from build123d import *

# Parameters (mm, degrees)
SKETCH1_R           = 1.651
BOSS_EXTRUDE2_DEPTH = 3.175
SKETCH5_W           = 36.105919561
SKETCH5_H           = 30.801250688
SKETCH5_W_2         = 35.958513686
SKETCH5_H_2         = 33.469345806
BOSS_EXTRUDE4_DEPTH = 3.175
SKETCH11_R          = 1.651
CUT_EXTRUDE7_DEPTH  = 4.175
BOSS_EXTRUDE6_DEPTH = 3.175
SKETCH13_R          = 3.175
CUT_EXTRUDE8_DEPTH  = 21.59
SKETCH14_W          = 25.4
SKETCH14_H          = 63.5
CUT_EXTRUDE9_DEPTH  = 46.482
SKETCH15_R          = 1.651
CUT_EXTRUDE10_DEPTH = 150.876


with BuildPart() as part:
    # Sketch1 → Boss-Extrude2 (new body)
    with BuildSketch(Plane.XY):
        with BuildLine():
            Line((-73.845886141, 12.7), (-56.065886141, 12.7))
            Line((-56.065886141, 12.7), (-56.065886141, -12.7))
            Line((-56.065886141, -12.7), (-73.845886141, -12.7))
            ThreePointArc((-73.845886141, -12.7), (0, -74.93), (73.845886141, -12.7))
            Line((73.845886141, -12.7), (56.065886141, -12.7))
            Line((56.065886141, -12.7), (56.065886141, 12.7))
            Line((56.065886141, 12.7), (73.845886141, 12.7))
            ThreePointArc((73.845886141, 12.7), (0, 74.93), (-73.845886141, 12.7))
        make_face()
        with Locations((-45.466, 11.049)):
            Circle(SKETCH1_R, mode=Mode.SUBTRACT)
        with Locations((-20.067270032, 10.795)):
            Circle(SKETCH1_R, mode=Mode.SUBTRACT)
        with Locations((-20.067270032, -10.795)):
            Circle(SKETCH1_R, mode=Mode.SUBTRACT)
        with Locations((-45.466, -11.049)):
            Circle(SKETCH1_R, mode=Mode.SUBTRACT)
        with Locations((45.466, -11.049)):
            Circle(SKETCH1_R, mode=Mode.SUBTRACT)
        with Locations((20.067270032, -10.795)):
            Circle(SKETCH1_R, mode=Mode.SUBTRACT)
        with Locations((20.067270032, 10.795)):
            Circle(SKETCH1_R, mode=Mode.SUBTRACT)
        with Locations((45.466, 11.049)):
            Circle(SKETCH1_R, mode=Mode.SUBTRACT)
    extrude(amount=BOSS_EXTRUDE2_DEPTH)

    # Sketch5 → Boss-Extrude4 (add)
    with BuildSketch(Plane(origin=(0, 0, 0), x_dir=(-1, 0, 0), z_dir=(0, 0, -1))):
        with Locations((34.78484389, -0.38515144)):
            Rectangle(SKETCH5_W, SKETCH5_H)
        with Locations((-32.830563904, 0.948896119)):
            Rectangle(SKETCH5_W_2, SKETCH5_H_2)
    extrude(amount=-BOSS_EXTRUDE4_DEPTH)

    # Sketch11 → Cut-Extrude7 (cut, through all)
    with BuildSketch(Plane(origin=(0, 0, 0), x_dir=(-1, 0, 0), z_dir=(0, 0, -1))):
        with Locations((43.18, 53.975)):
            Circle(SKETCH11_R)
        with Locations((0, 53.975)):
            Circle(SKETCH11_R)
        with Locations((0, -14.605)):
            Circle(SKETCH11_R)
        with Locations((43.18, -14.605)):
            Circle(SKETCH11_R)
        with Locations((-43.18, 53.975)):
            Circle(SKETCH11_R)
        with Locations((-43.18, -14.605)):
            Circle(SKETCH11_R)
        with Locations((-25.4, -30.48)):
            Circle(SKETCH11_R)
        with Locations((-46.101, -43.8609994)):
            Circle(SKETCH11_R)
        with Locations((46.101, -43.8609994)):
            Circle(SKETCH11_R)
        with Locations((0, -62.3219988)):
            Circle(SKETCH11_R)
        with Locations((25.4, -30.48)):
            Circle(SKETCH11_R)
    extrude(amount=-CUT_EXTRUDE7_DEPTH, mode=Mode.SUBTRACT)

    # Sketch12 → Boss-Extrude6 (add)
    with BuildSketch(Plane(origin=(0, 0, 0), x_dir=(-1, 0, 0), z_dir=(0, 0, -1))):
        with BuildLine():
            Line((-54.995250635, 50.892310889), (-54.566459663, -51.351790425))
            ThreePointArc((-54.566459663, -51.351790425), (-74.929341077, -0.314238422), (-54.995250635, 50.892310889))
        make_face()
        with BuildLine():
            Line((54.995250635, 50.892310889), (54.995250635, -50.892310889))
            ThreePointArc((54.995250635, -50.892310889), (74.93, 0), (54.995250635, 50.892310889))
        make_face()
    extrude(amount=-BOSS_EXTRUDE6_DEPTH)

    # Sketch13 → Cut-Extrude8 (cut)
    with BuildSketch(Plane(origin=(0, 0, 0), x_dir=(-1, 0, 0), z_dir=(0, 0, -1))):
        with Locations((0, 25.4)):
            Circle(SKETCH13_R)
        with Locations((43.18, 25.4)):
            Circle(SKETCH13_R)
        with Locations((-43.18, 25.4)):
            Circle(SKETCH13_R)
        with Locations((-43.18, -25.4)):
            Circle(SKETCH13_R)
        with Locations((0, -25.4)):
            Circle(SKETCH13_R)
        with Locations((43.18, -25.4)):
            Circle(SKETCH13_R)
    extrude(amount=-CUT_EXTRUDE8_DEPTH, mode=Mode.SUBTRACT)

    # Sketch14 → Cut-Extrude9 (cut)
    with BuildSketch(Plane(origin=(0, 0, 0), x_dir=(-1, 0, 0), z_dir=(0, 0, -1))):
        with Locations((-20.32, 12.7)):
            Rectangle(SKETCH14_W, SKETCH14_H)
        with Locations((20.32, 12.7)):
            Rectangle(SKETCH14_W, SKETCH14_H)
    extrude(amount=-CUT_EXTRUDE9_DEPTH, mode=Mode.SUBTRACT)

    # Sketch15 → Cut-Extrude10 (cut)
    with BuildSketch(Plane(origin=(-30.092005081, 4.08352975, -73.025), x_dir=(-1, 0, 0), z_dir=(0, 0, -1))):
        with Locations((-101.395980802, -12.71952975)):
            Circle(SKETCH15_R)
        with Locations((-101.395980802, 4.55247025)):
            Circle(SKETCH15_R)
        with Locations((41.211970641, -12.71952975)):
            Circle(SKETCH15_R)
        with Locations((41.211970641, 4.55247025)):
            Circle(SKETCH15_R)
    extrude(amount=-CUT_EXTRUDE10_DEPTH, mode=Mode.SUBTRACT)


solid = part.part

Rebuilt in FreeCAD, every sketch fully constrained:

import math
import FreeCAD as App
import Part
import Sketcher
from FreeCAD import Vector
Q = App.Units.Quantity

doc = App.newDocument("Part")
body = doc.addObject("PartDesign::Body", "Body")

# Sketch on XY plane
sketch1 = doc.addObject("Sketcher::SketchObject", "Sketch")
body.addObject(sketch1)
sketch1.AttachmentSupport = (doc.XY_Plane, [""])
sketch1.MapMode = "FlatFace"
sketch1.addGeometry(Part.LineSegment(Vector(-73.8, 12.7, 0), Vector(-56.1, 12.7, 0)), False)
sketch1.addGeometry(Part.LineSegment(Vector(-56.1, 12.7, 0), Vector(-56.1, -12.7, 0)), False)
sketch1.addGeometry(Part.LineSegment(Vector(-56.1, -12.7, 0), Vector(-73.8, -12.7, 0)), False)
sketch1.addGeometry(Part.ArcOfCircle(Part.Circle(Vector(0, 0, 0), Vector(0, 0, 1), 74.9), math.radians(-170), math.radians(-10)), False)
sketch1.addGeometry(Part.LineSegment(Vector(73.8, -12.7, 0), Vector(56.1, -12.7, 0)), False)
sketch1.addGeometry(Part.LineSegment(Vector(56.1, -12.7, 0), Vector(56.1, 12.7, 0)), False)
sketch1.addGeometry(Part.LineSegment(Vector(56.1, 12.7, 0), Vector(73.8, 12.7, 0)), False)
sketch1.addGeometry(Part.ArcOfCircle(Part.Circle(Vector(0, 0, 0), Vector(0, 0, 1), 74.9), math.radians(10), math.radians(170)), False)
sketch1.addGeometry(Part.Circle(Vector(-45.5, -11, 0), Vector(0, 0, 1), 1.7), False)
sketch1.addGeometry(Part.Circle(Vector(-20.1, -10.8, 0), Vector(0, 0, 1), 1.7), False)
sketch1.addGeometry(Part.Circle(Vector(20.1, -10.8, 0), Vector(0, 0, 1), 1.7), False)
sketch1.addGeometry(Part.Circle(Vector(45.5, -11, 0), Vector(0, 0, 1), 1.7), False)
sketch1.addGeometry(Part.Circle(Vector(-45.5, 11, 0), Vector(0, 0, 1), 1.7), False)
sketch1.addGeometry(Part.Circle(Vector(-20.1, 10.8, 0), Vector(0, 0, 1), 1.7), False)
sketch1.addGeometry(Part.Circle(Vector(20.1, 10.8, 0), Vector(0, 0, 1), 1.7), False)
sketch1.addGeometry(Part.Circle(Vector(45.5, 11, 0), Vector(0, 0, 1), 1.7), False)
sketch1.addConstraint(Sketcher.Constraint("Coincident", 0, 2, 1, 1))
sketch1.addConstraint(Sketcher.Constraint("Coincident", 1, 2, 2, 1))
sketch1.addConstraint(Sketcher.Constraint("Coincident", 2, 2, 3, 1))
sketch1.addConstraint(Sketcher.Constraint("Coincident", 3, 2, 4, 1))
sketch1.addConstraint(Sketcher.Constraint("Coincident", 4, 2, 5, 1))
sketch1.addConstraint(Sketcher.Constraint("Coincident", 5, 2, 6, 1))
sketch1.addConstraint(Sketcher.Constraint("Coincident", 6, 2, 7, 1))
sketch1.addConstraint(Sketcher.Constraint("Coincident", 7, 2, 0, 1))
sketch1.addConstraint(Sketcher.Constraint("Horizontal", 0))
sketch1.addConstraint(Sketcher.Constraint("Vertical", 1))
sketch1.addConstraint(Sketcher.Constraint("Horizontal", 2))
sketch1.addConstraint(Sketcher.Constraint("Horizontal", 4))
sketch1.addConstraint(Sketcher.Constraint("Vertical", 5))
sketch1.addConstraint(Sketcher.Constraint("Horizontal", 6))
sketch1.addConstraint(Sketcher.Constraint("Coincident", 3, 3, -1, 1))
sketch1.addConstraint(Sketcher.Constraint("Coincident", 7, 3, -1, 1))
sketch1.addConstraint(Sketcher.Constraint("Equal", 3, 7))
sketch1.addConstraint(Sketcher.Constraint("Equal", 8, 9))
sketch1.addConstraint(Sketcher.Constraint("Equal", 9, 10))
sketch1.addConstraint(Sketcher.Constraint("Equal", 10, 11))
sketch1.addConstraint(Sketcher.Constraint("Equal", 11, 12))
sketch1.addConstraint(Sketcher.Constraint("Equal", 12, 13))
sketch1.addConstraint(Sketcher.Constraint("Equal", 13, 14))
sketch1.addConstraint(Sketcher.Constraint("Equal", 14, 15))
sketch1.addConstraint(Sketcher.Constraint("Symmetric", 11, 3, 12, 3, -1, 1))
sketch1.addConstraint(Sketcher.Constraint("Symmetric", 10, 3, 13, 3, -1, 1))
sketch1.addConstraint(Sketcher.Constraint("Symmetric", 9, 3, 14, 3, -1, 1))
sketch1.addConstraint(Sketcher.Constraint("Symmetric", 8, 3, 15, 3, -1, 1))
sketch1.addConstraint(Sketcher.Constraint("Symmetric", 0, 2, 4, 2, -1, 1))
sketch1.addConstraint(Sketcher.Constraint("Symmetric", 9, 3, 10, 3, -2))
sketch1.addConstraint(Sketcher.Constraint("Symmetric", 8, 3, 11, 3, -2))
sketch1.addConstraint(Sketcher.Constraint("Horizontal", 2, 2, 3, 2))
sketch1.addConstraint(Sketcher.Constraint("Horizontal", 0, 2, 5, 2))
sketch1.addConstraint(Sketcher.Constraint("Diameter", 8, Q("0.13 in")))
sketch1.addConstraint(Sketcher.Constraint("DistanceY", 1, 2, 1, 1, Q("1 in")))
sketch1.addConstraint(Sketcher.Constraint("Radius", 3, Q("2.95 in")))
sketch1.addConstraint(Sketcher.Constraint("DistanceX", 0, 1, 0, 2, Q("0.7 in")))
sketch1.addConstraint(Sketcher.Constraint("DistanceX", 8, 3, -1, 1, Q("1.79 in")))
sketch1.addConstraint(Sketcher.Constraint("DistanceY", 8, 3, 9, 3, Q("0.01 in")))
sketch1.addConstraint(Sketcher.Constraint("DistanceY", 8, 3, 12, 3, Q("0.87 in")))
sketch1.addConstraint(Sketcher.Constraint("DistanceX", 9, 3, 10, 3, Q("1.5801 in")))
pad1 = doc.addObject("PartDesign::Pad", "Pad")
body.addObject(pad1)
pad1.Profile = sketch1
pad1.Length = Q("0.125 in")

# Sketch on XY plane
sketch2 = doc.addObject("Sketcher::SketchObject", "Sketch001")
body.addObject(sketch2)
sketch2.AttachmentSupport = (doc.XY_Plane, [""])
sketch2.MapMode = "FlatFace"
sketch2.addGeometry(Part.LineSegment(Vector(-17, 15, 0), Vector(-17, -16, 0)), False)
sketch2.addGeometry(Part.LineSegment(Vector(-17, -16, 0), Vector(-53, -16, 0)), False)
sketch2.addGeometry(Part.LineSegment(Vector(-53, -16, 0), Vector(-53, 15, 0)), False)
sketch2.addGeometry(Part.LineSegment(Vector(-53, 15, 0), Vector(-17, 15, 0)), False)
sketch2.addGeometry(Part.LineSegment(Vector(51, 18, 0), Vector(51, -16, 0)), False)
sketch2.addGeometry(Part.LineSegment(Vector(51, -16, 0), Vector(15, -16, 0)), False)
sketch2.addGeometry(Part.LineSegment(Vector(15, -16, 0), Vector(15, 18, 0)), False)
sketch2.addGeometry(Part.LineSegment(Vector(15, 18, 0), Vector(51, 18, 0)), False)
sketch2.addConstraint(Sketcher.Constraint("Coincident", 0, 2, 1, 1))
sketch2.addConstraint(Sketcher.Constraint("Coincident", 1, 2, 2, 1))
sketch2.addConstraint(Sketcher.Constraint("Coincident", 2, 2, 3, 1))
sketch2.addConstraint(Sketcher.Constraint("Coincident", 3, 2, 0, 1))
sketch2.addConstraint(Sketcher.Constraint("Coincident", 4, 2, 5, 1))
sketch2.addConstraint(Sketcher.Constraint("Coincident", 5, 2, 6, 1))
sketch2.addConstraint(Sketcher.Constraint("Coincident", 6, 2, 7, 1))
sketch2.addConstraint(Sketcher.Constraint("Coincident", 7, 2, 4, 1))
sketch2.addConstraint(Sketcher.Constraint("Vertical", 0))
sketch2.addConstraint(Sketcher.Constraint("Horizontal", 1))
sketch2.addConstraint(Sketcher.Constraint("Vertical", 2))
sketch2.addConstraint(Sketcher.Constraint("Horizontal", 3))
sketch2.addConstraint(Sketcher.Constraint("Vertical", 4))
sketch2.addConstraint(Sketcher.Constraint("Horizontal", 5))
sketch2.addConstraint(Sketcher.Constraint("Vertical", 6))
sketch2.addConstraint(Sketcher.Constraint("Horizontal", 7))
sketch2.addConstraint(Sketcher.Constraint("Horizontal", 1, 2, 4, 2))
sketch2.addConstraint(Sketcher.Constraint("DistanceX", 1, 2, 1, 1, 36.10592))
sketch2.addConstraint(Sketcher.Constraint("DistanceY", 0, 2, 0, 1, 30.801251))
sketch2.addConstraint(Sketcher.Constraint("DistanceX", 5, 2, 5, 1, 35.958514))
sketch2.addConstraint(Sketcher.Constraint("DistanceY", 4, 2, 4, 1, 33.469346))
sketch2.addConstraint(Sketcher.Constraint("DistanceX", -1, 1, 4, 2, 50.809821))
sketch2.addConstraint(Sketcher.Constraint("DistanceY", -1, 1, 6, 2, 17.683569))
sketch2.addConstraint(Sketcher.Constraint("DistanceX", 0, 2, 5, 2, 31.583191))
pad2 = doc.addObject("PartDesign::Pad", "Pad001")
body.addObject(pad2)
pad2.Profile = sketch2
pad2.Length = Q("0.125 in")

# Sketch on XY plane
sketch3 = doc.addObject("Sketcher::SketchObject", "Sketch002")
body.addObject(sketch3)
sketch3.AttachmentSupport = (doc.XY_Plane, [""])
sketch3.MapMode = "FlatFace"
sketch3.addGeometry(Part.Circle(Vector(-43.2, 54, 0), Vector(0, 0, 1), 1.7), False)
sketch3.addGeometry(Part.Circle(Vector(0, 54, 0), Vector(0, 0, 1), 1.7), False)
sketch3.addGeometry(Part.Circle(Vector(0, -14.6, 0), Vector(0, 0, 1), 1.7), False)
sketch3.addGeometry(Part.Circle(Vector(-43.2, -14.6, 0), Vector(0, 0, 1), 1.7), False)
sketch3.addGeometry(Part.Circle(Vector(43.2, 54, 0), Vector(0, 0, 1), 1.7), False)
sketch3.addGeometry(Part.Circle(Vector(43.2, -14.6, 0), Vector(0, 0, 1), 1.7), False)
sketch3.addGeometry(Part.Circle(Vector(25.4, -30.5, 0), Vector(0, 0, 1), 1.7), False)
sketch3.addGeometry(Part.Circle(Vector(46.1, -43.9, 0), Vector(0, 0, 1), 1.7), False)
sketch3.addGeometry(Part.Circle(Vector(-46.1, -43.9, 0), Vector(0, 0, 1), 1.7), False)
sketch3.addGeometry(Part.Circle(Vector(0, -62.3, 0), Vector(0, 0, 1), 1.7), False)
sketch3.addGeometry(Part.Circle(Vector(-25.4, -30.5, 0), Vector(0, 0, 1), 1.7), False)
sketch3.addConstraint(Sketcher.Constraint("Equal", 0, 1))
sketch3.addConstraint(Sketcher.Constraint("Equal", 1, 2))
sketch3.addConstraint(Sketcher.Constraint("Equal", 2, 3))
sketch3.addConstraint(Sketcher.Constraint("Equal", 3, 4))
sketch3.addConstraint(Sketcher.Constraint("Equal", 4, 5))
sketch3.addConstraint(Sketcher.Constraint("Equal", 5, 6))
sketch3.addConstraint(Sketcher.Constraint("Equal", 6, 7))
sketch3.addConstraint(Sketcher.Constraint("Equal", 7, 8))
sketch3.addConstraint(Sketcher.Constraint("Equal", 8, 9))
sketch3.addConstraint(Sketcher.Constraint("Equal", 9, 10))
sketch3.addConstraint(Sketcher.Constraint("Symmetric", 0, 3, 4, 3, -2))
sketch3.addConstraint(Sketcher.Constraint("Symmetric", 3, 3, 5, 3, -2))
sketch3.addConstraint(Sketcher.Constraint("Symmetric", 7, 3, 8, 3, -2))
sketch3.addConstraint(Sketcher.Constraint("Symmetric", 6, 3, 10, 3, -2))
sketch3.addConstraint(Sketcher.Constraint("PointOnObject", 1, 3, -2))
sketch3.addConstraint(Sketcher.Constraint("PointOnObject", 2, 3, -2))
sketch3.addConstraint(Sketcher.Constraint("PointOnObject", 9, 3, -2))
sketch3.addConstraint(Sketcher.Constraint("Horizontal", 0, 3, 1, 3))
sketch3.addConstraint(Sketcher.Constraint("Horizontal", 2, 3, 3, 3))
sketch3.addConstraint(Sketcher.Constraint("Vertical", 0, 3, 3, 3))
sketch3.addConstraint(Sketcher.Constraint("Diameter", 0, Q("0.13 in")))
sketch3.addConstraint(Sketcher.Constraint("DistanceX", -1, 1, 6, 3, Q("1 in")))
sketch3.addConstraint(Sketcher.Constraint("DistanceX", 0, 3, -1, 1, Q("1.7 in")))
sketch3.addConstraint(Sketcher.Constraint("DistanceY", 6, 3, -1, 1, Q("1.2 in")))
sketch3.addConstraint(Sketcher.Constraint("DistanceY", 2, 3, 1, 3, Q("2.7 in")))
sketch3.addConstraint(Sketcher.Constraint("DistanceX", 8, 3, 7, 3, Q("3.63 in")))
sketch3.addConstraint(Sketcher.Constraint("DistanceY", -1, 1, 0, 3, Q("2.125 in")))
sketch3.addConstraint(Sketcher.Constraint("DistanceY", 7, 3, -1, 1, 43.860999))
sketch3.addConstraint(Sketcher.Constraint("DistanceY", 9, 3, -1, 1, 62.321999))
pocket1 = doc.addObject("PartDesign::Pocket", "Pocket")
body.addObject(pocket1)
pocket1.Profile = sketch3
pocket1.Type = "ThroughAll"
pocket1.Reversed = True

# Sketch on XY plane
sketch4 = doc.addObject("Sketcher::SketchObject", "Sketch003")
body.addObject(sketch4)
sketch4.AttachmentSupport = (doc.XY_Plane, [""])
sketch4.MapMode = "FlatFace"
sketch4.addGeometry(Part.LineSegment(Vector(55, -51, 0), Vector(55, 51, 0)), False)
sketch4.addGeometry(Part.ArcOfCircle(Part.Circle(Vector(0, 0, 0), Vector(0, 0, 1), 75), math.radians(-43), math.radians(43)), False)
sketch4.addGeometry(Part.LineSegment(Vector(-55, 51, 0), Vector(-55, -51, 0)), False)
sketch4.addGeometry(Part.ArcOfCircle(Part.Circle(Vector(0, 0, 0), Vector(0, 0, 1), 75), math.radians(137), math.radians(223)), False)
sketch4.addConstraint(Sketcher.Constraint("Coincident", 0, 1, 1, 1))
sketch4.addConstraint(Sketcher.Constraint("Coincident", 1, 2, 0, 2))
sketch4.addConstraint(Sketcher.Constraint("Coincident", 2, 1, 3, 1))
sketch4.addConstraint(Sketcher.Constraint("Coincident", 3, 2, 2, 2))
sketch4.addConstraint(Sketcher.Constraint("Vertical", 2))
sketch4.addConstraint(Sketcher.Constraint("Coincident", 1, 3, -1, 1))
sketch4.addConstraint(Sketcher.Constraint("Coincident", 3, 3, -1, 1))
sketch4.addConstraint(Sketcher.Constraint("Equal", 1, 3))
sketch4.addConstraint(Sketcher.Constraint("Horizontal", 1, 2, 2, 1))
sketch4.addConstraint(Sketcher.Constraint("Radius", 1, Q("2.95 in")))
sketch4.addConstraint(Sketcher.Constraint("Distance", 0, 102.245))
sketch4.addConstraint(Sketcher.Constraint("DistanceY", 2, 2, 2, 1, 101.784622))
pad3 = doc.addObject("PartDesign::Pad", "Pad002")
body.addObject(pad3)
pad3.Profile = sketch4
pad3.Length = Q("0.125 in")

# Sketch on XY plane
sketch5 = doc.addObject("Sketcher::SketchObject", "Sketch004")
body.addObject(sketch5)
sketch5.AttachmentSupport = (doc.XY_Plane, [""])
sketch5.MapMode = "FlatFace"
sketch5.addGeometry(Part.Circle(Vector(0, 25.4, 0), Vector(0, 0, 1), 3.2), False)
sketch5.addGeometry(Part.Circle(Vector(-43.2, 25.4, 0), Vector(0, 0, 1), 3.2), False)
sketch5.addGeometry(Part.Circle(Vector(43.2, 25.4, 0), Vector(0, 0, 1), 3.2), False)
sketch5.addGeometry(Part.Circle(Vector(43.2, -25.4, 0), Vector(0, 0, 1), 3.2), False)
sketch5.addGeometry(Part.Circle(Vector(0, -25.4, 0), Vector(0, 0, 1), 3.2), False)
sketch5.addGeometry(Part.Circle(Vector(-43.2, -25.4, 0), Vector(0, 0, 1), 3.2), False)
sketch5.addConstraint(Sketcher.Constraint("Equal", 0, 1))
sketch5.addConstraint(Sketcher.Constraint("Equal", 1, 2))
sketch5.addConstraint(Sketcher.Constraint("Equal", 2, 3))
sketch5.addConstraint(Sketcher.Constraint("Equal", 3, 4))
sketch5.addConstraint(Sketcher.Constraint("Equal", 4, 5))
sketch5.addConstraint(Sketcher.Constraint("Symmetric", 1, 3, 3, 3, -1, 1))
sketch5.addConstraint(Sketcher.Constraint("Symmetric", 0, 3, 4, 3, -1, 1))
sketch5.addConstraint(Sketcher.Constraint("Symmetric", 2, 3, 5, 3, -1, 1))
sketch5.addConstraint(Sketcher.Constraint("Symmetric", 1, 3, 2, 3, -2))
sketch5.addConstraint(Sketcher.Constraint("PointOnObject", 0, 3, -2))
sketch5.addConstraint(Sketcher.Constraint("Horizontal", 0, 3, 1, 3))
sketch5.addConstraint(Sketcher.Constraint("Diameter", 0, Q("0.25 in")))
sketch5.addConstraint(Sketcher.Constraint("DistanceY", -1, 1, 0, 3, Q("1 in")))
sketch5.addConstraint(Sketcher.Constraint("DistanceX", 1, 3, -1, 1, Q("1.7 in")))
pocket2 = doc.addObject("PartDesign::Pocket", "Pocket001")
body.addObject(pocket2)
pocket2.Profile = sketch5
pocket2.Length = Q("0.85 in")
pocket2.Reversed = True

# Sketch on XY plane
sketch6 = doc.addObject("Sketcher::SketchObject", "Sketch005")
body.addObject(sketch6)
sketch6.AttachmentSupport = (doc.XY_Plane, [""])
sketch6.MapMode = "FlatFace"
sketch6.addGeometry(Part.LineSegment(Vector(33, 44, 0), Vector(33, -19, 0)), False)
sketch6.addGeometry(Part.LineSegment(Vector(33, -19, 0), Vector(8, -19, 0)), False)
sketch6.addGeometry(Part.LineSegment(Vector(8, -19, 0), Vector(8, 44, 0)), False)
sketch6.addGeometry(Part.LineSegment(Vector(8, 44, 0), Vector(33, 44, 0)), False)
sketch6.addGeometry(Part.LineSegment(Vector(-8, 44, 0), Vector(-8, -19, 0)), False)
sketch6.addGeometry(Part.LineSegment(Vector(-8, -19, 0), Vector(-33, -19, 0)), False)
sketch6.addGeometry(Part.LineSegment(Vector(-33, -19, 0), Vector(-33, 44, 0)), False)
sketch6.addGeometry(Part.LineSegment(Vector(-33, 44, 0), Vector(-8, 44, 0)), False)
sketch6.addConstraint(Sketcher.Constraint("Coincident", 0, 2, 1, 1))
sketch6.addConstraint(Sketcher.Constraint("Coincident", 1, 2, 2, 1))
sketch6.addConstraint(Sketcher.Constraint("Coincident", 2, 2, 3, 1))
sketch6.addConstraint(Sketcher.Constraint("Coincident", 3, 2, 0, 1))
sketch6.addConstraint(Sketcher.Constraint("Coincident", 4, 2, 5, 1))
sketch6.addConstraint(Sketcher.Constraint("Coincident", 5, 2, 6, 1))
sketch6.addConstraint(Sketcher.Constraint("Coincident", 6, 2, 7, 1))
sketch6.addConstraint(Sketcher.Constraint("Coincident", 7, 2, 4, 1))
sketch6.addConstraint(Sketcher.Constraint("Vertical", 0))
sketch6.addConstraint(Sketcher.Constraint("Horizontal", 1))
sketch6.addConstraint(Sketcher.Constraint("Vertical", 2))
sketch6.addConstraint(Sketcher.Constraint("Horizontal", 3))
sketch6.addConstraint(Sketcher.Constraint("Vertical", 4))
sketch6.addConstraint(Sketcher.Constraint("Horizontal", 5))
sketch6.addConstraint(Sketcher.Constraint("Vertical", 6))
sketch6.addConstraint(Sketcher.Constraint("Horizontal", 7))
sketch6.addConstraint(Sketcher.Constraint("Symmetric", 1, 2, 4, 2, -2))
sketch6.addConstraint(Sketcher.Constraint("Symmetric", 3, 2, 6, 2, -2))
sketch6.addConstraint(Sketcher.Constraint("DistanceX", 1, 2, 1, 1, Q("1 in")))
sketch6.addConstraint(Sketcher.Constraint("DistanceY", 0, 2, 0, 1, Q("2.5 in")))
sketch6.addConstraint(Sketcher.Constraint("DistanceX", -1, 1, 0, 2, Q("1.3 in")))
sketch6.addConstraint(Sketcher.Constraint("DistanceY", 0, 2, -1, 1, Q("0.75 in")))
pocket3 = doc.addObject("PartDesign::Pocket", "Pocket002")
body.addObject(pocket3)
pocket3.Profile = sketch6
pocket3.Length = Q("1.83 in")
pocket3.Reversed = True

# Sketch on XY plane
sketch7 = doc.addObject("Sketcher::SketchObject", "Sketch006")
body.addObject(sketch7)
sketch7.AttachmentSupport = (doc.XY_Plane, [""])
sketch7.MapMode = "FlatFace"
sketch7.AttachmentOffset = App.Placement(Vector(0, 0, -2.875 * 25.4), App.Rotation())
sketch7.addGeometry(Part.Circle(Vector(71.3, -8.6, 0), Vector(0, 0, 1), 1.7), False)
sketch7.addGeometry(Part.Circle(Vector(71.3, 8.6, 0), Vector(0, 0, 1), 1.7), False)
sketch7.addGeometry(Part.Circle(Vector(-71.3, -8.6, 0), Vector(0, 0, 1), 1.7), False)
sketch7.addGeometry(Part.Circle(Vector(-71.3, 8.6, 0), Vector(0, 0, 1), 1.7), False)
sketch7.addConstraint(Sketcher.Constraint("Equal", 0, 1))
sketch7.addConstraint(Sketcher.Constraint("Equal", 1, 2))
sketch7.addConstraint(Sketcher.Constraint("Equal", 2, 3))
sketch7.addConstraint(Sketcher.Constraint("Symmetric", 1, 3, 2, 3, -1, 1))
sketch7.addConstraint(Sketcher.Constraint("Symmetric", 0, 3, 3, 3, -1, 1))
sketch7.addConstraint(Sketcher.Constraint("Symmetric", 0, 3, 2, 3, -2))
sketch7.addConstraint(Sketcher.Constraint("Diameter", 0, Q("0.13 in")))
sketch7.addConstraint(Sketcher.Constraint("DistanceY", 0, 3, -1, 1, Q("0.34 in")))
sketch7.addConstraint(Sketcher.Constraint("DistanceX", 2, 3, 0, 3, 142.607951))
pocket4 = doc.addObject("PartDesign::Pocket", "Pocket003")
body.addObject(pocket4)
pocket4.Profile = sketch7
pocket4.Length = Q("5.94 in")
pocket4.Reversed = True

doc.recompute()
